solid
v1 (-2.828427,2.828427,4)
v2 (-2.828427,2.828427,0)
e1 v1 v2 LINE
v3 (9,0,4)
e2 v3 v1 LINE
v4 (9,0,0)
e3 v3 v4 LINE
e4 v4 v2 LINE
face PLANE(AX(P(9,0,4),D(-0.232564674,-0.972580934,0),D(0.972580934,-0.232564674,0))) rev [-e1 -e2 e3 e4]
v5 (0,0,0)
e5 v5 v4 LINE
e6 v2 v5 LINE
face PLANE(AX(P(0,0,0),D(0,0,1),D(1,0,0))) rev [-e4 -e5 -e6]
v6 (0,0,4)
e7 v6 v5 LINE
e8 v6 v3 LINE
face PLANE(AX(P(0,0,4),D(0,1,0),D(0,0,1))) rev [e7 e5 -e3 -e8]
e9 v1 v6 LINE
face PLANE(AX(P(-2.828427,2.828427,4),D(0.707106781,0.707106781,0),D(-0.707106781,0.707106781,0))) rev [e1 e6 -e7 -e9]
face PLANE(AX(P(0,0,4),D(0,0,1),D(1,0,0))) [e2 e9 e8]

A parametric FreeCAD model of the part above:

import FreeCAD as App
import Part
import Sketcher
from FreeCAD import Vector
Q = App.Units.Quantity


def add_polygon(sketch, points):
    """Adds a closed chain of lines whose ends are joined by coincident constraints."""
    first, n = sketch.GeometryCount, len(points)
    for a, b in zip(points, points[1:] + points[:1]):
        sketch.addGeometry(Part.LineSegment(App.Vector(*a, 0), App.Vector(*b, 0)), False)
    for i in range(n):
        sketch.addConstraint(Sketcher.Constraint("Coincident", first + i, 2, first + (i + 1) % n, 1))

doc = App.newDocument("Part")
params = doc.addObject("Spreadsheet::Sheet", "Params")
for row, (alias, value) in enumerate([
    ("sketch1_width", "9 mm"),
    ("sketch1_length", "4 mm"),
    ("pad1_length", "4 mm"),
], start=1):
    params.set(f"A{row}", alias)
    params.set(f"B{row}", "=" + value)
    params.setAlias(f"B{row}", alias)

body = doc.addObject("PartDesign::Body", "Body")

# Sketch on XY plane
sketch1 = body.newObject("Sketcher::SketchObject", "Sketch")
sketch1.AttachmentSupport = (doc.getObject("XY_Plane"), [""])
sketch1.MapMode = "FlatFace"
add_polygon(sketch1, [(0, 0), (9, 0), (-2.828427, 2.828427)])  # lines 0-2
sketch1.addConstraint(Sketcher.Constraint("Horizontal", 0))
sketch1.addConstraint(Sketcher.Constraint("Coincident", 2, 2, -1, 1))
sketch1.addConstraint(Sketcher.Constraint("DistanceX", 0, 1, 0, 2, 9.0))
sketch1.addConstraint(Sketcher.Constraint("Angle", 2, Q("-45 deg")))
sketch1.addConstraint(Sketcher.Constraint("Distance", 2, 4.0))
sketch1.setExpression("Constraints[5]", "Params.sketch1_width")
sketch1.setExpression("Constraints[7]", "Params.sketch1_length")
pad1 = body.newObject("PartDesign::Pad", "Pad")
pad1.Profile = sketch1
pad1.setExpression("Length", "Params.pad1_length")

doc.recompute()
